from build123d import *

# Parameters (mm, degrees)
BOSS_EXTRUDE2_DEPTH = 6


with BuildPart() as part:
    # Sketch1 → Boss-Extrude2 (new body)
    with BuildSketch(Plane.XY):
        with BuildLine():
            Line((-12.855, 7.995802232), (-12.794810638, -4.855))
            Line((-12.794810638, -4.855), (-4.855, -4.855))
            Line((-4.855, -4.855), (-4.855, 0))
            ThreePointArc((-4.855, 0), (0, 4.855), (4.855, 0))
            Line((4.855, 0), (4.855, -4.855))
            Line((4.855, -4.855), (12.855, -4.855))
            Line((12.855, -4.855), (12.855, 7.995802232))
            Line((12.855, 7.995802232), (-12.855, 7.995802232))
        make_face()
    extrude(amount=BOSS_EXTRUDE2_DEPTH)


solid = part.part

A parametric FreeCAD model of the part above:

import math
import FreeCAD as App
import Part
import Sketcher
Q = App.Units.Quantity

doc = App.newDocument("Part")
params = doc.addObject("Spreadsheet::Sheet", "Params")
for row, (alias, value) in enumerate([
    ("sketch1_width", "8 mm"),
    ("pad1_length", "6 mm"),
], start=1):
    params.set(f"A{row}", alias)
    params.set(f"B{row}", "=" + value)
    params.setAlias(f"B{row}", alias)

body = doc.addObject("PartDesign::Body", "Body")

# Sketch on XY plane
sketch1 = doc.addObject("Sketcher::SketchObject", "Sketch")
body.addObject(sketch1)
sketch1.AttachmentSupport = (doc.XY_Plane, [""])
sketch1.MapMode = "FlatFace"
sketch1.addGeometry([
    Part.LineSegment(App.Vector(-12.855, 7.995802, 0), App.Vector(-12.794811, -4.855, 0)),  # 0
    Part.LineSegment(App.Vector(-12.794811, -4.855, 0), App.Vector(-4.855, -4.855, 0)),  # 1
    Part.LineSegment(App.Vector(-4.855, -4.855, 0), App.Vector(-4.855, 0, 0)),  # 2
    Part.ArcOfCircle(Part.Circle(App.Vector(0, 0, 0), App.Vector(0, 0, 1), 4.855), math.radians(0), math.radians(180)),  # 3
    Part.LineSegment(App.Vector(4.855, 0, 0), App.Vector(4.855, -4.855, 0)),  # 4
    Part.LineSegment(App.Vector(4.855, -4.855, 0), App.Vector(12.855, -4.855, 0)),  # 5
    Part.LineSegment(App.Vector(12.855, -4.855, 0), App.Vector(12.855, 7.995802, 0)),  # 6
    Part.LineSegment(App.Vector(12.855, 7.995802, 0), App.Vector(-12.855, 7.995802, 0)),  # 7
], False)
sketch1.addConstraint([
    Sketcher.Constraint("Coincident", 0, 2, 1, 1),
    Sketcher.Constraint("Coincident", 1, 2, 2, 1),
    Sketcher.Constraint("Tangent", 2, 2, 3, 2),
    Sketcher.Constraint("Tangent", 3, 1, 4, 1),
    Sketcher.Constraint("Coincident", 4, 2, 5, 1),
    Sketcher.Constraint("Coincident", 5, 2, 6, 1),
    Sketcher.Constraint("Coincident", 6, 2, 7, 1),
    Sketcher.Constraint("Coincident", 7, 2, 0, 1),
    Sketcher.Constraint("Horizontal", 1),
    Sketcher.Constraint("Vertical", 2),
    Sketcher.Constraint("Vertical", 4),
    Sketcher.Constraint("Horizontal", 5),
    Sketcher.Constraint("Vertical", 6),
    Sketcher.Constraint("Horizontal", 7),
    Sketcher.Constraint("Coincident", 3, 3, -1, 1),
    Sketcher.Constraint("Horizontal", 1, 2, 4, 2),
    Sketcher.Constraint("DistanceX", 5, 1, 5, 2, Q("8 mm")),
    Sketcher.Constraint("Radius", 3, Q("4.855 mm")),
    Sketcher.Constraint("DistanceX", 7, 2, 2, 2, Q("8 mm")),
    Sketcher.Constraint("DistanceY", 2, 1, 2, 2, Q("4.855 mm")),
    Sketcher.Constraint("DistanceX", 1, 1, 1, 2, Q("7.939811 mm")),
    Sketcher.Constraint("DistanceY", 6, 1, 6, 2, Q("12.850802 mm")),
])
sketch1.setExpression("Constraints[16]", "Params.sketch1_width")
pad1 = doc.addObject("PartDesign::Pad", "Pad")
body.addObject(pad1)
pad1.Profile = sketch1
pad1.setExpression("Length", "Params.pad1_length")

doc.recompute()
